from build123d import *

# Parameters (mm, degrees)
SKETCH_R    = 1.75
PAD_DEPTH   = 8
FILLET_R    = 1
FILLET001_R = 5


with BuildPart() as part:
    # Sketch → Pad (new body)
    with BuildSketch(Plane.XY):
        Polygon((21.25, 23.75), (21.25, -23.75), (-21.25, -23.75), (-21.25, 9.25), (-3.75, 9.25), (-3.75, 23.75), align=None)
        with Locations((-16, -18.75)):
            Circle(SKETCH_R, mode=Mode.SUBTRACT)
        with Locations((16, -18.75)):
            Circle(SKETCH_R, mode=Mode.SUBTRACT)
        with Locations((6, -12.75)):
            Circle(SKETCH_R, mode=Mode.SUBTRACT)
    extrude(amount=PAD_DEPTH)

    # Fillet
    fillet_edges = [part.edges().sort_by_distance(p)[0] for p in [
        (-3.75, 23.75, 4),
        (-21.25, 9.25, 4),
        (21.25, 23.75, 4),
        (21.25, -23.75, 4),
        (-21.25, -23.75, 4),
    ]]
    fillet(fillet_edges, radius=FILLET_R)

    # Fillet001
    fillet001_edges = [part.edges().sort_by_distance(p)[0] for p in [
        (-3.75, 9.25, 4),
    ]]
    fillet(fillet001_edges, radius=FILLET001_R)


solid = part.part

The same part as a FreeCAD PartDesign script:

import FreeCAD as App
import Part
import Sketcher


def edges_at(feature, points):
    """Names of the edges that pass closest to the given points."""
    edges = feature.Shape.Edges
    near = lambda p: min(range(len(edges)), key=lambda i: edges[i].distToShape(Part.Vertex(*p))[0])
    return sorted({f"Edge{near(p) + 1}" for p in points})


def add_polygon(sketch, points):
    """Adds a closed chain of lines whose ends are joined by coincident constraints."""
    first, n = sketch.GeometryCount, len(points)
    for a, b in zip(points, points[1:] + points[:1]):
        sketch.addGeometry(Part.LineSegment(App.Vector(*a, 0), App.Vector(*b, 0)), False)
    for i in range(n):
        sketch.addConstraint(Sketcher.Constraint("Coincident", first + i, 2, first + (i + 1) % n, 1))

doc = App.newDocument("Part")
params = doc.addObject("Spreadsheet::Sheet", "Params")
for row, (alias, value) in enumerate([
    ("sketch1_diameter", "3.5 mm"),
    ("sketch1_width", "25 mm"),
    ("sketch1_height", "33 mm"),
    ("sketch1_width2", "17.5 mm"),
    ("sketch1_height2", "47.5 mm"),
    ("pad1_length", "8 mm"),
    ("fillet_radius", "1 mm"),
    ("fillet2_radius", "5 mm"),
], start=1):
    params.set(f"A{row}", alias)
    params.set(f"B{row}", "=" + value)
    params.setAlias(f"B{row}", alias)

body = doc.addObject("PartDesign::Body", "Body")

# Sketch on XY plane
sketch1 = body.newObject("Sketcher::SketchObject", "Sketch")
sketch1.AttachmentSupport = (doc.getObject("XY_Plane"), [""])
sketch1.MapMode = "FlatFace"
add_polygon(sketch1, [(21.25, -23.75), (21.25, 23.75), (-3.75, 23.75), (-3.75, 9.25), (-21.25, 9.25), (-21.25, -23.75)])  # lines 0-5
sketch1.addGeometry(Part.Circle(App.Vector(16, -18.75, 0), App.Vector(0, 0, 1), 1.75), False)  # 6
sketch1.addGeometry(Part.Circle(App.Vector(-16, -18.75, 0), App.Vector(0, 0, 1), 1.75), False)  # 7
sketch1.addGeometry(Part.Circle(App.Vector(6, -12.75, 0), App.Vector(0, 0, 1), 1.75), False)  # 8
sketch1.addConstraint(Sketcher.Constraint("Vertical", 0))
sketch1.addConstraint(Sketcher.Constraint("Horizontal", 1))
sketch1.addConstraint(Sketcher.Constraint("Vertical", 2))
sketch1.addConstraint(Sketcher.Constraint("Horizontal", 3))
sketch1.addConstraint(Sketcher.Constraint("Vertical", 4))
sketch1.addConstraint(Sketcher.Constraint("Horizontal", 5))
sketch1.addConstraint(Sketcher.Constraint("Equal", 6, 7))
sketch1.addConstraint(Sketcher.Constraint("Equal", 7, 8))
sketch1.addConstraint(Sketcher.Constraint("Symmetric", 0, 2, 4, 2, -1, 1))
sketch1.addConstraint(Sketcher.Constraint("Symmetric", 6, 3, 7, 3, -2))
sketch1.addConstraint(Sketcher.Constraint("Diameter", 6, 3.5))
sketch1.addConstraint(Sketcher.Constraint("DistanceX", 1, 2, 1, 1, 25.0))
sketch1.addConstraint(Sketcher.Constraint("DistanceY", 4, 2, 4, 1, 33.0))
sketch1.addConstraint(Sketcher.Constraint("DistanceX", 3, 2, 3, 1, 17.5))
sketch1.addConstraint(Sketcher.Constraint("DistanceY", 0, 1, 0, 2, 47.5))
sketch1.addConstraint(Sketcher.Constraint("DistanceX", -1, 1, 6, 3, 16.0))
sketch1.addConstraint(Sketcher.Constraint("DistanceX", -1, 1, 8, 3, 6.0))
sketch1.addConstraint(Sketcher.Constraint("DistanceY", 6, 3, 8, 3, 6.0))
sketch1.addConstraint(Sketcher.Constraint("DistanceY", 8, 3, 2, 2, 22.0))
sketch1.setExpression("Constraints[16]", "Params.sketch1_diameter")
sketch1.setExpression("Constraints[17]", "Params.sketch1_width")
sketch1.setExpression("Constraints[18]", "Params.sketch1_height")
sketch1.setExpression("Constraints[19]", "Params.sketch1_width2")
sketch1.setExpression("Constraints[20]", "Params.sketch1_height2")
pad1 = body.newObject("PartDesign::Pad", "Pad")
pad1.Profile = sketch1
pad1.setExpression("Length", "Params.pad1_length")
doc.recompute()

fillet = body.newObject("PartDesign::Fillet", "Fillet")
fillet.Base = (pad1, edges_at(pad1, [
    (-3.75, 23.75, 4),
    (-21.25, 9.25, 4),
    (21.25, 23.75, 4),
    (21.25, -23.75, 4),
    (-21.25, -23.75, 4),
]))
fillet.setExpression("Radius", "Params.fillet_radius")
doc.recompute()

fillet2 = body.newObject("PartDesign::Fillet", "Fillet001")
fillet2.Base = (fillet, edges_at(fillet, [(-3.75, 9.25, 4)]))
fillet2.setExpression("Radius", "Params.fillet2_radius")

doc.recompute()
